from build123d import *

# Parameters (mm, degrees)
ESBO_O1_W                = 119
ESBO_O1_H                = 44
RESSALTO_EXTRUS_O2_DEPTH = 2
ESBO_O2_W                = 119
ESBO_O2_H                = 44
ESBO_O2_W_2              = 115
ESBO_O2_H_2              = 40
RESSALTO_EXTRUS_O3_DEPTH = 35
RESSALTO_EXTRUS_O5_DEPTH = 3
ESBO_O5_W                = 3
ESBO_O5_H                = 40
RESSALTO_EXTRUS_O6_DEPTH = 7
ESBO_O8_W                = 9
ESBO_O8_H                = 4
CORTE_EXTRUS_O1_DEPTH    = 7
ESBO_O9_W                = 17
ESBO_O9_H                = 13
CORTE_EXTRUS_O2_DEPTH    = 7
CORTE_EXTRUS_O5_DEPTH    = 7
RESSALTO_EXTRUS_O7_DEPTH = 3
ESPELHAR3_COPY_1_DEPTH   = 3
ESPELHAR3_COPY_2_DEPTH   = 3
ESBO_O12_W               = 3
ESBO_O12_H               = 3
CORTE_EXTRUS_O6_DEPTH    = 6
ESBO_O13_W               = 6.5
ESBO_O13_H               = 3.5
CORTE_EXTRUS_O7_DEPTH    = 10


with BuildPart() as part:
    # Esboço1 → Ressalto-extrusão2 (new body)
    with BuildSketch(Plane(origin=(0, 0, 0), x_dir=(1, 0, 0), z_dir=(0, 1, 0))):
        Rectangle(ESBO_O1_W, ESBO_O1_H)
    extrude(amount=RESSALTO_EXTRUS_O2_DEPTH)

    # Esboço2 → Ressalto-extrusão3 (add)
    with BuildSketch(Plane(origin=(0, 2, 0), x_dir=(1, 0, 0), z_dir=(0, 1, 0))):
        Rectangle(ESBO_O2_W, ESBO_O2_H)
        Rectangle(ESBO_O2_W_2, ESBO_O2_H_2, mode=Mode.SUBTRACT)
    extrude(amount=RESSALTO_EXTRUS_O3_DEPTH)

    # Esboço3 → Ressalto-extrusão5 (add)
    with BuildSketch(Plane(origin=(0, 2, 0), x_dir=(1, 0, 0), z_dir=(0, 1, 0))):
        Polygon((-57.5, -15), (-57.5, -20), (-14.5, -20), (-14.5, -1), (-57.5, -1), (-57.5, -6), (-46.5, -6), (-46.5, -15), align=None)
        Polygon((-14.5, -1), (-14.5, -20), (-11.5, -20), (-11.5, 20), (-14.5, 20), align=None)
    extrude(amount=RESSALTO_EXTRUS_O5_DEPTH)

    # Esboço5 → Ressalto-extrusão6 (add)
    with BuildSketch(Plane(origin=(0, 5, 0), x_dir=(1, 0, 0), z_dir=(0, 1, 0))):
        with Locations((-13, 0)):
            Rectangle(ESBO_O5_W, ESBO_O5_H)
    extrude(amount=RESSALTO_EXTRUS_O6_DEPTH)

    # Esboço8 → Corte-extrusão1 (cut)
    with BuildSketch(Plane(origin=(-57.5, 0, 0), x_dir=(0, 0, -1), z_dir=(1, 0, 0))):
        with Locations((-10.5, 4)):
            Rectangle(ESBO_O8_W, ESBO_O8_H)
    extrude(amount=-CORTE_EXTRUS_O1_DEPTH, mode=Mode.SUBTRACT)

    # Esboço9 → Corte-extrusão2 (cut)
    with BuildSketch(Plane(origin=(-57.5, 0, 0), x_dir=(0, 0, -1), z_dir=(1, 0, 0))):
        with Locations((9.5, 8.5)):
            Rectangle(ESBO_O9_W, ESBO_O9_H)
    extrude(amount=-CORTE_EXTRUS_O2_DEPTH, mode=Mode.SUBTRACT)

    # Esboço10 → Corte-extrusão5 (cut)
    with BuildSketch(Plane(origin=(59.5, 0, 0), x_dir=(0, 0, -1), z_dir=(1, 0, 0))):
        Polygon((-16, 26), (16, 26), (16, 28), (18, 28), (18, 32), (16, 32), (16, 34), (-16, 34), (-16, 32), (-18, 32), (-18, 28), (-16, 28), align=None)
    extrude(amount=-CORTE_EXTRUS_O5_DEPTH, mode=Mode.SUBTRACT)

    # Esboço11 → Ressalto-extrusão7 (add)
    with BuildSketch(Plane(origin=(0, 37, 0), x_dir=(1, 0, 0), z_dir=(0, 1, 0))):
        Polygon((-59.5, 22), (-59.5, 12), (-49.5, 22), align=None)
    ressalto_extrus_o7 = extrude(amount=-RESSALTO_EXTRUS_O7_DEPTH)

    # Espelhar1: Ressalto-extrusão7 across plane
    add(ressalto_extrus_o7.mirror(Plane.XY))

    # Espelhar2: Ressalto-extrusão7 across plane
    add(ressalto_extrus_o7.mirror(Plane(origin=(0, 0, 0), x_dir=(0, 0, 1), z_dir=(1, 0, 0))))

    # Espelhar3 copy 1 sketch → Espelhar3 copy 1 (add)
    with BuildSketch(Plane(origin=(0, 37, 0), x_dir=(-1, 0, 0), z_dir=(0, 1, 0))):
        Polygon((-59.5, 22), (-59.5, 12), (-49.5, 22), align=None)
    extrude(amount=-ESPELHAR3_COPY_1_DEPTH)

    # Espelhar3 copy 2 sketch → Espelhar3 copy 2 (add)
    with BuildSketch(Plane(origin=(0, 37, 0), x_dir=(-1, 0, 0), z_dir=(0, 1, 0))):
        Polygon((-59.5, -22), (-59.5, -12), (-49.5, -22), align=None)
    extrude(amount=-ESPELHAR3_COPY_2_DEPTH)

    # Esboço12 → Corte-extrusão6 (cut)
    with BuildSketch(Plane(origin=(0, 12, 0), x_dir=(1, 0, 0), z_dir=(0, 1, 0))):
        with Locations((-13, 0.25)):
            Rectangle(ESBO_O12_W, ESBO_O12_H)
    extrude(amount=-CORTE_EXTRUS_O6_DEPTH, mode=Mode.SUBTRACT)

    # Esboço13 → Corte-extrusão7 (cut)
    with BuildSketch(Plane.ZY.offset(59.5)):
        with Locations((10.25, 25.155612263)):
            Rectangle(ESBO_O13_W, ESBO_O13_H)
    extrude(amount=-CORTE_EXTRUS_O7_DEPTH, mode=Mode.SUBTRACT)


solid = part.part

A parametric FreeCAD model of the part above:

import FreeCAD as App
import Part
import Sketcher


def add_polygon(sketch, points):
    """Adds a closed chain of lines whose ends are joined by coincident constraints."""
    first, n = sketch.GeometryCount, len(points)
    for a, b in zip(points, points[1:] + points[:1]):
        sketch.addGeometry(Part.LineSegment(App.Vector(*a, 0), App.Vector(*b, 0)), False)
    for i in range(n):
        sketch.addConstraint(Sketcher.Constraint("Coincident", first + i, 2, first + (i + 1) % n, 1))

doc = App.newDocument("Part")
body = doc.addObject("PartDesign::Body", "Body")

sketch1 = body.newObject("Sketcher::SketchObject", "Sketch")
sketch1.AttachmentSupport = (doc.getObject("XZ_Plane"), [""])
sketch1.MapMode = "FlatFace"
add_polygon(sketch1, [(-60, -22), (-60, 22), (60, 22), (60, -22)])
sketch1.addConstraint(Sketcher.Constraint("Vertical", 0))
sketch1.addConstraint(Sketcher.Constraint("Horizontal", 1))
sketch1.addConstraint(Sketcher.Constraint("Vertical", 2))
sketch1.addConstraint(Sketcher.Constraint("Horizontal", 3))
sketch1.addConstraint(Sketcher.Constraint("Symmetric", 0, 2, 2, 2, -1, 1))
sketch1.addConstraint(Sketcher.Constraint("DistanceX", 1, 1, 1, 2, 119.0))
sketch1.addConstraint(Sketcher.Constraint("DistanceY", 0, 1, 0, 2, 44.0))
pad1 = body.newObject("PartDesign::Pad", "Pad")
pad1.Profile = sketch1
pad1.Length = 2
pad1.Reversed = True

sketch2 = body.newObject("Sketcher::SketchObject", "Sketch001")
sketch2.AttachmentSupport = (doc.getObject("XZ_Plane"), [""])
sketch2.MapMode = "FlatFace"
sketch2.AttachmentOffset = App.Placement(App.Vector(0, 0, -2), App.Rotation())
add_polygon(sketch2, [(-60, -22), (-60, 22), (60, 22), (60, -22)])
add_polygon(sketch2, [(58, 20), (-58, 20), (-58, -20), (58, -20)])
sketch2.addConstraint(Sketcher.Constraint("Vertical", 0))
sketch2.addConstraint(Sketcher.Constraint("Horizontal", 1))
sketch2.addConstraint(Sketcher.Constraint("Vertical", 2))
sketch2.addConstraint(Sketcher.Constraint("Horizontal", 3))
sketch2.addConstraint(Sketcher.Constraint("Horizontal", 4))
sketch2.addConstraint(Sketcher.Constraint("Vertical", 5))
sketch2.addConstraint(Sketcher.Constraint("Horizontal", 6))
sketch2.addConstraint(Sketcher.Constraint("Vertical", 7))
sketch2.addConstraint(Sketcher.Constraint("Symmetric", 0, 2, 2, 2, -1, 1))
sketch2.addConstraint(Sketcher.Constraint("Symmetric", 4, 2, 6, 2, -1, 1))
sketch2.addConstraint(Sketcher.Constraint("DistanceX", 1, 1, 1, 2, 119.0))
sketch2.addConstraint(Sketcher.Constraint("DistanceX", 4, 2, 4, 1, 115.0))
sketch2.addConstraint(Sketcher.Constraint("DistanceY", 0, 1, 0, 2, 44.0))
sketch2.addConstraint(Sketcher.Constraint("DistanceY", 5, 2, 5, 1, 40.0))
pad2 = body.newObject("PartDesign::Pad", "Pad001")
pad2.Profile = sketch2
pad2.Length = 35
pad2.Reversed = True

sketch3 = body.newObject("Sketcher::SketchObject", "Sketch002")
sketch3.AttachmentSupport = (doc.getObject("XZ_Plane"), [""])
sketch3.MapMode = "FlatFace"
sketch3.AttachmentOffset = App.Placement(App.Vector(0, 0, -2), App.Rotation())
add_polygon(sketch3, [(-57.5, 15), (-57.5, 20), (-11.5, 20), (-11.5, -20), (-14.5, -20), (-14.5, 1), (-57.5, 1), (-57.5, 6), (-46.5, 6), (-46.5, 15)])
sketch3.addConstraint(Sketcher.Constraint("Vertical", 0))
sketch3.addConstraint(Sketcher.Constraint("Horizontal", 1))
sketch3.addConstraint(Sketcher.Constraint("Vertical", 2))
sketch3.addConstraint(Sketcher.Constraint("Horizontal", 3))
sketch3.addConstraint(Sketcher.Constraint("Vertical", 4))
sketch3.addConstraint(Sketcher.Constraint("Horizontal", 5))
sketch3.addConstraint(Sketcher.Constraint("Vertical", 6))
sketch3.addConstraint(Sketcher.Constraint("Horizontal", 7))
sketch3.addConstraint(Sketcher.Constraint("Vertical", 8))
sketch3.addConstraint(Sketcher.Constraint("Horizontal", 9))
sketch3.addConstraint(Sketcher.Constraint("Vertical", 0, 2, 5, 2))
sketch3.addConstraint(Sketcher.Constraint("Equal", 0, 6))
sketch3.addConstraint(Sketcher.Constraint("DistanceX", 1, 1, 1, 2, 46.0))
sketch3.addConstraint(Sketcher.Constraint("DistanceX", 3, 2, 3, 1, 3.0))
sketch3.addConstraint(Sketcher.Constraint("DistanceX", 7, 1, 7, 2, 11.0))
sketch3.addConstraint(Sketcher.Constraint("DistanceY", 0, 1, 0, 2, 5.0))
sketch3.addConstraint(Sketcher.Constraint("DistanceY", 2, 2, 2, 1, 40.0))
sketch3.addConstraint(Sketcher.Constraint("DistanceY", 4, 1, 4, 2, 21.0))
sketch3.addConstraint(Sketcher.Constraint("DistanceY", -1, 1, 0, 2, 20.0))
sketch3.addConstraint(Sketcher.Constraint("DistanceX", 0, 2, -1, 1, 57.5))
pad3 = body.newObject("PartDesign::Pad", "Pad002")
pad3.Profile = sketch3
pad3.Length = 3
pad3.Reversed = True

sketch4 = body.newObject("Sketcher::SketchObject", "Sketch003")
sketch4.AttachmentSupport = (doc.getObject("XZ_Plane"), [""])
sketch4.MapMode = "FlatFace"
sketch4.AttachmentOffset = App.Placement(App.Vector(0, 0, -5), App.Rotation())
add_polygon(sketch4, [(-14.5, -20), (-14.5, 20), (-11.5, 20), (-11.5, -20)])
sketch4.addConstraint(Sketcher.Constraint("Vertical", 0))
sketch4.addConstraint(Sketcher.Constraint("Horizontal", 1))
sketch4.addConstraint(Sketcher.Constraint("Vertical", 2))
sketch4.addConstraint(Sketcher.Constraint("Horizontal", 3))
sketch4.addConstraint(Sketcher.Constraint("DistanceX", 1, 1, 1, 2, 3.0))
sketch4.addConstraint(Sketcher.Constraint("DistanceY", 0, 1, 0, 2, 40.0))
sketch4.addConstraint(Sketcher.Constraint("DistanceY", -1, 1, 0, 2, 20.0))
sketch4.addConstraint(Sketcher.Constraint("DistanceX", 0, 2, -1, 1, 14.5))
pad4 = body.newObject("PartDesign::Pad", "Pad003")
pad4.Profile = sketch4
pad4.Length = 7
pad4.Reversed = True

sketch5 = body.newObject("Sketcher::SketchObject", "Sketch004")
sketch5.AttachmentSupport = (doc.getObject("YZ_Plane"), [""])
sketch5.MapMode = "FlatFace"
sketch5.AttachmentOffset = App.Placement(App.Vector(0, 0, -57.5), App.Rotation())
add_polygon(sketch5, [(6, 15), (2, 15), (2, 6), (6, 6)])
sketch5.addConstraint(Sketcher.Constraint("Horizontal", 0))
sketch5.addConstraint(Sketcher.Constraint("Vertical", 1))
sketch5.addConstraint(Sketcher.Constraint("Horizontal", 2))
sketch5.addConstraint(Sketcher.Constraint("Vertical", 3))
sketch5.addConstraint(Sketcher.Constraint("DistanceX", 0, 2, 0, 1, 4.0))
sketch5.addConstraint(Sketcher.Constraint("DistanceY", 1, 2, 1, 1, 9.0))
sketch5.addConstraint(Sketcher.Constraint("DistanceX", -1, 1, 0, 2, 2.0))
sketch5.addConstraint(Sketcher.Constraint("DistanceY", -1, 1, 0, 2, 15.0))
pocket1 = body.newObject("PartDesign::Pocket", "Pocket")
pocket1.Profile = sketch5
pocket1.Length = 7

sketch6 = body.newObject("Sketcher::SketchObject", "Sketch005")
sketch6.AttachmentSupport = (doc.getObject("YZ_Plane"), [""])
sketch6.MapMode = "FlatFace"
sketch6.AttachmentOffset = App.Placement(App.Vector(0, 0, -57.5), App.Rotation())
add_polygon(sketch6, [(15, -1), (2, -1), (2, -18), (15, -18)])
sketch6.addConstraint(Sketcher.Constraint("Horizontal", 0))
sketch6.addConstraint(Sketcher.Constraint("Vertical", 1))
sketch6.addConstraint(Sketcher.Constraint("Horizontal", 2))
sketch6.addConstraint(Sketcher.Constraint("Vertical", 3))
sketch6.addConstraint(Sketcher.Constraint("DistanceX", 0, 2, 0, 1, 13.0))
sketch6.addConstraint(Sketcher.Constraint("DistanceY", 1, 2, 1, 1, 17.0))
sketch6.addConstraint(Sketcher.Constraint("DistanceX", -1, 1, 0, 2, 2.0))
sketch6.addConstraint(Sketcher.Constraint("DistanceY", 0, 2, -1, 1, 1.0))
pocket2 = body.newObject("PartDesign::Pocket", "Pocket001")
pocket2.Profile = sketch6
pocket2.Length = 7

sketch7 = body.newObject("Sketcher::SketchObject", "Sketch006")
sketch7.AttachmentSupport = (doc.getObject("YZ_Plane"), [""])
sketch7.MapMode = "FlatFace"
sketch7.AttachmentOffset = App.Placement(App.Vector(0, 0, 59.5), App.Rotation())
add_polygon(sketch7, [(26, 16), (26, -16), (28, -16), (28, -18), (32, -18), (32, -16), (34, -16), (34, 16), (32, 16), (32, 18), (28, 18), (28, 16)])
sketch7.addConstraint(Sketcher.Constraint("Vertical", 0))
sketch7.addConstraint(Sketcher.Constraint("Horizontal", 1))
sketch7.addConstraint(Sketcher.Constraint("Vertical", 2))
sketch7.addConstraint(Sketcher.Constraint("Horizontal", 3))
sketch7.addConstraint(Sketcher.Constraint("Vertical", 4))
sketch7.addConstraint(Sketcher.Constraint("Horizontal", 5))
sketch7.addConstraint(Sketcher.Constraint("Vertical", 6))
sketch7.addConstraint(Sketcher.Constraint("Horizontal", 7))
sketch7.addConstraint(Sketcher.Constraint("Vertical", 8))
sketch7.addConstraint(Sketcher.Constraint("Horizontal", 9))
sketch7.addConstraint(Sketcher.Constraint("Vertical", 10))
sketch7.addConstraint(Sketcher.Constraint("Horizontal", 11))
sketch7.addConstraint(Sketcher.Constraint("Symmetric", 4, 2, 7, 2, -1))
sketch7.addConstraint(Sketcher.Constraint("Symmetric", 2, 2, 9, 2, -1))
sketch7.addConstraint(Sketcher.Constraint("Horizontal", 1, 2, 4, 2))
sketch7.addConstraint(Sketcher.Constraint("Horizontal", 7, 2, 10, 2))
sketch7.addConstraint(Sketcher.Constraint("Equal", 1, 5))
sketch7.addConstraint(Sketcher.Constraint("Equal", 11, 2))
sketch7.addConstraint(Sketcher.Constraint("DistanceX", 1, 1, 1, 2, 2.0))
sketch7.addConstraint(Sketcher.Constraint("DistanceX", 3, 1, 3, 2, 4.0))
sketch7.addConstraint(Sketcher.Constraint("DistanceY", 0, 2, 0, 1, 32.0))
sketch7.addConstraint(Sketcher.Constraint("DistanceX", -1, 1, 0, 2, 26.0))
pocket3 = body.newObject("PartDesign::Pocket", "Pocket002")
pocket3.Profile = sketch7
pocket3.Length = 7

sketch8 = body.newObject("Sketcher::SketchObject", "Sketch007")
sketch8.AttachmentSupport = (doc.getObject("XZ_Plane"), [""])
sketch8.MapMode = "FlatFace"
sketch8.AttachmentOffset = App.Placement(App.Vector(0, 0, -37), App.Rotation())
add_polygon(sketch8, [(-60, -22), (-60, -12), (-50, -22)])
sketch8.addConstraint(Sketcher.Constraint("Vertical", 0))
sketch8.addConstraint(Sketcher.Constraint("Horizontal", 2))
sketch8.addConstraint(Sketcher.Constraint("Equal", 2, 0))
sketch8.addConstraint(Sketcher.Constraint("DistanceX", 2, 2, 2, 1, 10.0))
sketch8.addConstraint(Sketcher.Constraint("DistanceY", 0, 2, -1, 1, 12.0))
sketch8.addConstraint(Sketcher.Constraint("DistanceX", 0, 2, -1, 1, 59.5))
pad5 = body.newObject("PartDesign::Pad", "Pad004")
pad5.Profile = sketch8
pad5.Length = 3
doc.recompute()

mirrored = body.newObject("PartDesign::Mirrored", "Mirrored")
mirrored.Originals = [pad5]
mirrored.MirrorPlane = (doc.getObject("XY_Plane"), [""])
body.Tip = mirrored
doc.recompute()

mirrored2 = body.newObject("PartDesign::Mirrored", "Mirrored001")
mirrored2.Originals = [pad5]
mirrored2.MirrorPlane = (doc.getObject("YZ_Plane"), [""])
body.Tip = mirrored2

sketch9 = body.newObject("Sketcher::SketchObject", "Sketch008")
sketch9.AttachmentSupport = (doc.getObject("XZ_Plane"), [""])
sketch9.MapMode = "FlatFace"
sketch9.AttachmentOffset = App.Placement(App.Vector(0, 0, -37), App.Rotation())
add_polygon(sketch9, [(60, 22), (60, 12), (50, 22)])
sketch9.addConstraint(Sketcher.Constraint("Vertical", 0))
sketch9.addConstraint(Sketcher.Constraint("Horizontal", 2))
sketch9.addConstraint(Sketcher.Constraint("Equal", 2, 0))
sketch9.addConstraint(Sketcher.Constraint("DistanceX", 2, 1, 2, 2, 10.0))
sketch9.addConstraint(Sketcher.Constraint("DistanceY", -1, 1, 0, 2, 12.0))
sketch9.addConstraint(Sketcher.Constraint("DistanceX", -1, 1, 0, 2, 59.5))
pad6 = body.newObject("PartDesign::Pad", "Pad005")
pad6.Profile = sketch9
pad6.Length = 3

sketch10 = body.newObject("Sketcher::SketchObject", "Sketch009")
sketch10.AttachmentSupport = (doc.getObject("XZ_Plane"), [""])
sketch10.MapMode = "FlatFace"
sketch10.AttachmentOffset = App.Placement(App.Vector(0, 0, -37), App.Rotation())
add_polygon(sketch10, [(60, -12), (60, -22), (50, -22)])
sketch10.addConstraint(Sketcher.Constraint("Vertical", 0))
sketch10.addConstraint(Sketcher.Constraint("Horizontal", 1))
sketch10.addConstraint(Sketcher.Constraint("Equal", 1, 0))
sketch10.addConstraint(Sketcher.Constraint("DistanceX", 1, 2, 1, 1, 10.0))
sketch10.addConstraint(Sketcher.Constraint("DistanceY", 0, 2, -1, 1, 22.0))
sketch10.addConstraint(Sketcher.Constraint("DistanceX", -1, 1, 0, 2, 59.5))
pad7 = body.newObject("PartDesign::Pad", "Pad006")
pad7.Profile = sketch10
pad7.Length = 3

sketch11 = body.newObject("Sketcher::SketchObject", "Sketch010")
sketch11.AttachmentSupport = (doc.getObject("XZ_Plane"), [""])
sketch11.MapMode = "FlatFace"
sketch11.AttachmentOffset = App.Placement(App.Vector(0, 0, -12), App.Rotation())
add_polygon(sketch11, [(-14.5, -1.8), (-14.5, 1.2), (-11.5, 1.2), (-11.5, -1.8)])
sketch11.addConstraint(Sketcher.Constraint("Vertical", 0))
sketch11.addConstraint(Sketcher.Constraint("Horizontal", 1))
sketch11.addConstraint(Sketcher.Constraint("Vertical", 2))
sketch11.addConstraint(Sketcher.Constraint("Horizontal", 3))
sketch11.addConstraint(Sketcher.Constraint("Equal", 3, 0))
sketch11.addConstraint(Sketcher.Constraint("DistanceX", 1, 1, 1, 2, 3.0))
sketch11.addConstraint(Sketcher.Constraint("DistanceX", 0, 2, -1, 1, 14.5))
sketch11.addConstraint(Sketcher.Constraint("DistanceY", -1, 1, 0, 2, 1.25))
pocket4 = body.newObject("PartDesign::Pocket", "Pocket003")
pocket4.Profile = sketch11
pocket4.Length = 6
pocket4.Reversed = True

sketch12 = body.newObject("Sketcher::SketchObject", "Sketch011")
sketch12.AttachmentSupport = (doc.getObject("YZ_Plane"), [""])
sketch12.MapMode = "FlatFace"
sketch12.AttachmentOffset = App.Placement(App.Vector(0, 0, -59.5), App.Rotation())
add_polygon(sketch12, [(26.9, 7), (23.4, 7), (23.4, 13.5), (26.9, 13.5)])
sketch12.addConstraint(Sketcher.Constraint("Horizontal", 0))
sketch12.addConstraint(Sketcher.Constraint("Vertical", 1))
sketch12.addConstraint(Sketcher.Constraint("Horizontal", 2))
sketch12.addConstraint(Sketcher.Constraint("Vertical", 3))
sketch12.addConstraint(Sketcher.Constraint("DistanceX", 0, 2, 0, 1, 3.5))
sketch12.addConstraint(Sketcher.Constraint("DistanceY", 1, 1, 1, 2, 6.5))
sketch12.addConstraint(Sketcher.Constraint("DistanceY", -1, 1, 0, 2, 7.0))
sketch12.addConstraint(Sketcher.Constraint("DistanceX", -1, 1, 0, 2, 23.405612))
pocket5 = body.newObject("PartDesign::Pocket", "Pocket004")
pocket5.Profile = sketch12
pocket5.Length = 10
pocket5.Reversed = True

doc.recompute()
